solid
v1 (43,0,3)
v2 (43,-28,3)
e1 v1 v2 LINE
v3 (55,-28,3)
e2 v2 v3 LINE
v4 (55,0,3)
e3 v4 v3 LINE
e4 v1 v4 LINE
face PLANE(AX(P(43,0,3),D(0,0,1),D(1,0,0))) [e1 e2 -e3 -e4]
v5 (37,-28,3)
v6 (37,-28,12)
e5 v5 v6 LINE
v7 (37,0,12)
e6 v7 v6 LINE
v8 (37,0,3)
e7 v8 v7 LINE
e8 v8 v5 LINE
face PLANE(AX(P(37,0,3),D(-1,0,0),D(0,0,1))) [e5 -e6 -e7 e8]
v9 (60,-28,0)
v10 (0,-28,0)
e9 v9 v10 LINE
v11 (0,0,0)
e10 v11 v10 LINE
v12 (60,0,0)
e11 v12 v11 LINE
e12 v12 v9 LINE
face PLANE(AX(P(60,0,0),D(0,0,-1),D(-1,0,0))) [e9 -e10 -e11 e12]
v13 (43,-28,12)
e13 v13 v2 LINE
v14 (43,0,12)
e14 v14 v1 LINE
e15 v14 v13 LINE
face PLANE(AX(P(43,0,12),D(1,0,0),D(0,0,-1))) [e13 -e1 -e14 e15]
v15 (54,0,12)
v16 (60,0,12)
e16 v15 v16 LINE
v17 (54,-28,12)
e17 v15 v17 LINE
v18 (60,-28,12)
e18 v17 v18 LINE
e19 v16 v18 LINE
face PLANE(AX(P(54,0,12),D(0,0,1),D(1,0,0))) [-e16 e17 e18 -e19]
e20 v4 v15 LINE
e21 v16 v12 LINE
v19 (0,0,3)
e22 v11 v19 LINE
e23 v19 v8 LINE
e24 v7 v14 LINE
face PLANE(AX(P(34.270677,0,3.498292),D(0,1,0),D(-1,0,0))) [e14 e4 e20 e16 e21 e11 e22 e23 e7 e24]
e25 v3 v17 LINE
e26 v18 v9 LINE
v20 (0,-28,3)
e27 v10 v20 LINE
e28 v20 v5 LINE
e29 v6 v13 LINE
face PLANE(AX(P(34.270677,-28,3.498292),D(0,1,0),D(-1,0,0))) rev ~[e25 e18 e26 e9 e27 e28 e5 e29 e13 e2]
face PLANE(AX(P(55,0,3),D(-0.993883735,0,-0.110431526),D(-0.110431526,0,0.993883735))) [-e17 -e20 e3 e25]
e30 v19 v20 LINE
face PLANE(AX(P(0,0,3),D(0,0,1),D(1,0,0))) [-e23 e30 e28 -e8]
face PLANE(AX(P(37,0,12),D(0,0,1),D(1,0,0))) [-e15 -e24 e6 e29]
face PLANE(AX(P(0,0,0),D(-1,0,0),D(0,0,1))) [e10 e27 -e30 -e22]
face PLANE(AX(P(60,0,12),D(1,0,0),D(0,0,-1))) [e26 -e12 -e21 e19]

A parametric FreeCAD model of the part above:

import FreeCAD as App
import Part
import Sketcher


def add_polygon(sketch, points):
    """Adds a closed chain of lines whose ends are joined by coincident constraints."""
    first, n = sketch.GeometryCount, len(points)
    for a, b in zip(points, points[1:] + points[:1]):
        sketch.addGeometry(Part.LineSegment(App.Vector(*a, 0), App.Vector(*b, 0)), False)
    for i in range(n):
        sketch.addConstraint(Sketcher.Constraint("Coincident", first + i, 2, first + (i + 1) % n, 1))

doc = App.newDocument("Part")
body = doc.addObject("PartDesign::Body", "Body")

sketch1 = doc.addObject("Sketcher::SketchObject", "Sketch")
body.addObject(sketch1)
sketch1.AttachmentSupport = (doc.XZ_Plane, [""])
sketch1.MapMode = "FlatFace"
add_polygon(sketch1, [(0, 3), (0, 0), (60, 0), (60, 12), (54, 12), (55, 3), (43, 3), (43, 12), (37, 12), (37, 3)])
sketch1.addConstraint([
    Sketcher.Constraint("Vertical", 0),
    Sketcher.Constraint("Horizontal", 1),
    Sketcher.Constraint("Vertical", 2),
    Sketcher.Constraint("Horizontal", 3),
    Sketcher.Constraint("Horizontal", 5),
    Sketcher.Constraint("Vertical", 6),
    Sketcher.Constraint("Horizontal", 7),
    Sketcher.Constraint("Vertical", 8),
    Sketcher.Constraint("Horizontal", 9),
    Sketcher.Constraint("Coincident", 0, 2, -1, 1),
    Sketcher.Constraint("Horizontal", 3, 2, 6, 2),
    Sketcher.Constraint("Horizontal", 5, 2, 8, 2),
    Sketcher.Constraint("Equal", 3, 7),
    Sketcher.Constraint("Equal", 5, 2),
    Sketcher.Constraint("DistanceX", 1, 1, 1, 2, 60.0),
    Sketcher.Constraint("DistanceX", 3, 2, 3, 1, 6.0),
    Sketcher.Constraint("DistanceX", 5, 2, 5, 1, 12.0),
    Sketcher.Constraint("DistanceX", 9, 2, 9, 1, 37.0),
    Sketcher.Constraint("DistanceY", 0, 2, 0, 1, 3.0),
])
pad1 = doc.addObject("PartDesign::Pad", "Pad")
body.addObject(pad1)
pad1.Profile = sketch1
pad1.Length = 28

doc.recompute()
